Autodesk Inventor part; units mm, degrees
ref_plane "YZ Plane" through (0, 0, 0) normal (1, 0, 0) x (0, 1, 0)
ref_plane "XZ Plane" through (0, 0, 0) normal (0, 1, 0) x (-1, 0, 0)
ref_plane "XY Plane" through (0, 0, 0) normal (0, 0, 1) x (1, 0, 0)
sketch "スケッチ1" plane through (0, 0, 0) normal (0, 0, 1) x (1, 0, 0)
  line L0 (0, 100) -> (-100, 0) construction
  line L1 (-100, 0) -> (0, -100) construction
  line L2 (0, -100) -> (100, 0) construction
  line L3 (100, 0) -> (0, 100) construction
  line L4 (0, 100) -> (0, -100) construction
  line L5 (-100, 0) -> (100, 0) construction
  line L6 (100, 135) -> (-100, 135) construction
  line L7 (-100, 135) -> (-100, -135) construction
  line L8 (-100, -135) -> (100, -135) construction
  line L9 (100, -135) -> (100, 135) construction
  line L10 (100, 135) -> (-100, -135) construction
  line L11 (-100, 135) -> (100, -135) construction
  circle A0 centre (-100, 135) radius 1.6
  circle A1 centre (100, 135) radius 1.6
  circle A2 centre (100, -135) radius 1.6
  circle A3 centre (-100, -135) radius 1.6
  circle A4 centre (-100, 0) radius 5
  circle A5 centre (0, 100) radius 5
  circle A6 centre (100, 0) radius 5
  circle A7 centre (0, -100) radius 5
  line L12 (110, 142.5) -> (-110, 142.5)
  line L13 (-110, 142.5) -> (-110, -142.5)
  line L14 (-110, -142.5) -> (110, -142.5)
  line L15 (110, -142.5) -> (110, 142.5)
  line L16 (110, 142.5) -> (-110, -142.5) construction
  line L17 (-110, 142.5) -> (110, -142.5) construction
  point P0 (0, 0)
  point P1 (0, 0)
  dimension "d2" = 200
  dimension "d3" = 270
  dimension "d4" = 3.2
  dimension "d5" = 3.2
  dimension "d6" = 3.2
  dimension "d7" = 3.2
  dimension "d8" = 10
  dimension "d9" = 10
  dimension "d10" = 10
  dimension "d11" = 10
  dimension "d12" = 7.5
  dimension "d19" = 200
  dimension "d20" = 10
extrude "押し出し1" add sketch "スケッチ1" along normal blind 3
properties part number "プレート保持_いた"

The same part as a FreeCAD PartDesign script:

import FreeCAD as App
import Part
import Sketcher


def add_polygon(sketch, points):
    """Adds a closed chain of lines whose ends are joined by coincident constraints."""
    first, n = sketch.GeometryCount, len(points)
    for a, b in zip(points, points[1:] + points[:1]):
        sketch.addGeometry(Part.LineSegment(App.Vector(*a, 0), App.Vector(*b, 0)), False)
    for i in range(n):
        sketch.addConstraint(Sketcher.Constraint("Coincident", first + i, 2, first + (i + 1) % n, 1))

doc = App.newDocument("Part")
body = doc.addObject("PartDesign::Body", "Body")

sketch1 = body.newObject("Sketcher::SketchObject", "Sketch")
sketch1.AttachmentSupport = (doc.getObject("XY_Plane"), [""])
sketch1.MapMode = "FlatFace"
add_polygon(sketch1, [(110, -142.5), (110, 142.5), (-110, 142.5), (-110, -142.5)])
sketch1.addGeometry(Part.Circle(App.Vector(-100, -135, 0), App.Vector(0, 0, 1), 1.6), False)
sketch1.addGeometry(Part.Circle(App.Vector(0, -100, 0), App.Vector(0, 0, 1), 5), False)
sketch1.addGeometry(Part.Circle(App.Vector(100, -135, 0), App.Vector(0, 0, 1), 1.6), False)
sketch1.addGeometry(Part.Circle(App.Vector(-100, 0, 0), App.Vector(0, 0, 1), 5), False)
sketch1.addGeometry(Part.Circle(App.Vector(-100, 135, 0), App.Vector(0, 0, 1), 1.6), False)
sketch1.addGeometry(Part.Circle(App.Vector(100, 0, 0), App.Vector(0, 0, 1), 5), False)
sketch1.addGeometry(Part.Circle(App.Vector(0, 100, 0), App.Vector(0, 0, 1), 5), False)
sketch1.addGeometry(Part.Circle(App.Vector(100, 135, 0), App.Vector(0, 0, 1), 1.6), False)
sketch1.addConstraint([
    Sketcher.Constraint("Vertical", 0),
    Sketcher.Constraint("Horizontal", 1),
    Sketcher.Constraint("Vertical", 2),
    Sketcher.Constraint("Horizontal", 3),
    Sketcher.Constraint("Equal", 4, 6),
    Sketcher.Constraint("Equal", 5, 7),
    Sketcher.Constraint("Equal", 6, 8),
    Sketcher.Constraint("Equal", 7, 9),
    Sketcher.Constraint("Equal", 9, 10),
    Sketcher.Constraint("Equal", 8, 11),
    Sketcher.Constraint("Symmetric", 6, 3, 8, 3, -1, 1),
    Sketcher.Constraint("Symmetric", 7, 3, 9, 3, -1, 1),
    Sketcher.Constraint("Symmetric", 5, 3, 10, 3, -1, 1),
    Sketcher.Constraint("Symmetric", 4, 3, 11, 3, -1, 1),
    Sketcher.Constraint("Symmetric", 0, 2, 2, 2, -1, 1),
    Sketcher.Constraint("Symmetric", 4, 3, 6, 3, -2),
    Sketcher.Constraint("PointOnObject", 5, 3, -2),
    Sketcher.Constraint("PointOnObject", 7, 3, -1),
    Sketcher.Constraint("Vertical", 4, 3, 7, 3),
    Sketcher.Constraint("Diameter", 5, 10.0),
    Sketcher.Constraint("Diameter", 4, 3.2),
    Sketcher.Constraint("DistanceX", 4, 3, 6, 3, 200.0),
    Sketcher.Constraint("DistanceY", 4, 3, 8, 3, 270.0),
    Sketcher.Constraint("DistanceY", 5, 3, 10, 3, 200.0),
    Sketcher.Constraint("DistanceX", 11, 3, 0, 2, 10.0),
    Sketcher.Constraint("DistanceY", 11, 3, 0, 2, 7.5),
])
pad1 = body.newObject("PartDesign::Pad", "Pad")
pad1.Profile = sketch1
pad1.Length = 3

doc.recompute()
